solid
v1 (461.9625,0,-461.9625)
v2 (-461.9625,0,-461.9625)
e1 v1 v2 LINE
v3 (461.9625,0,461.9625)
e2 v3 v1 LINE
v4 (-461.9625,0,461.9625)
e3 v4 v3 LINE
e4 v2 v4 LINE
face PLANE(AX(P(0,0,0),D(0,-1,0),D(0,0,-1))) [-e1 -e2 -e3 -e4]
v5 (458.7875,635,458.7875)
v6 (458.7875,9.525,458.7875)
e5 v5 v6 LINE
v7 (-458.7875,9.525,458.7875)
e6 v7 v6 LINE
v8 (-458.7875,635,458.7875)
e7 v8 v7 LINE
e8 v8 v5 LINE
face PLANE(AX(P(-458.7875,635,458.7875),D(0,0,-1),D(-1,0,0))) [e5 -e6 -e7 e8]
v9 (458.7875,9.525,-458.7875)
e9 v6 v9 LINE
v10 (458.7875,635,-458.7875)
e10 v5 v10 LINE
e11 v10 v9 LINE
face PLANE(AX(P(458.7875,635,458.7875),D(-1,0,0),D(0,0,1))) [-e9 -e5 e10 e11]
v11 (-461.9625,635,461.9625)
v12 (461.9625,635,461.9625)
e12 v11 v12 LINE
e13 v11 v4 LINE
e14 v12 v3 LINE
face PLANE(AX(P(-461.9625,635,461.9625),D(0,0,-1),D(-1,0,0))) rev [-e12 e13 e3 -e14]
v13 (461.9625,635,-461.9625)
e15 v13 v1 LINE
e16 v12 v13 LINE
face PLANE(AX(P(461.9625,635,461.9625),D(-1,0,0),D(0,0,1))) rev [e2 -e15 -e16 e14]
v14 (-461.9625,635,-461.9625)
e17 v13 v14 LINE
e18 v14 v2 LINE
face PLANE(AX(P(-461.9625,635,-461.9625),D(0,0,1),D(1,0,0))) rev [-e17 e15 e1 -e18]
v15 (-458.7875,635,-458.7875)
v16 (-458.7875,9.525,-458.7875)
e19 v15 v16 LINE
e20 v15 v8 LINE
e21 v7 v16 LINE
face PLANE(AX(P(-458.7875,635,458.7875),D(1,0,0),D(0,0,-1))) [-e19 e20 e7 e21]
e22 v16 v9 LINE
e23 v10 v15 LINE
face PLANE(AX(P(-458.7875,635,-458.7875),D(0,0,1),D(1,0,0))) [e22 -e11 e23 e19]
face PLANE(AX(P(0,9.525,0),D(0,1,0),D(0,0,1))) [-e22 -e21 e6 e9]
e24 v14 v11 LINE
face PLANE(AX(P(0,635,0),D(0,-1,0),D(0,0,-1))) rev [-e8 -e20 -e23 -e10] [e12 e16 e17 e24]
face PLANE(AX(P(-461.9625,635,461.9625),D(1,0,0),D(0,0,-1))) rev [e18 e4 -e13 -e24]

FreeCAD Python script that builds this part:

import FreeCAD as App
import Part
import Sketcher
from FreeCAD import Vector
Q = App.Units.Quantity


def add_polygon(sketch, points):
    """Adds a closed chain of lines whose ends are joined by coincident constraints."""
    first, n = sketch.GeometryCount, len(points)
    for a, b in zip(points, points[1:] + points[:1]):
        sketch.addGeometry(Part.LineSegment(App.Vector(*a, 0), App.Vector(*b, 0)), False)
    for i in range(n):
        sketch.addConstraint(Sketcher.Constraint("Coincident", first + i, 2, first + (i + 1) % n, 1))

doc = App.newDocument("Part")
body = doc.addObject("PartDesign::Body", "Body")

# Sketch on XZ plane
sketch1 = doc.addObject("Sketcher::SketchObject", "Sketch")
body.addObject(sketch1)
sketch1.AttachmentSupport = (doc.XZ_Plane, [""])
sketch1.MapMode = "FlatFace"
add_polygon(sketch1, [(-462, -462), (-462, 462), (462, 462), (462, -462)])  # lines 0-3
add_polygon(sketch1, [(459, 459), (-459, 459), (-459, -459), (459, -459)])  # lines 4-7
sketch1.addConstraint(Sketcher.Constraint("Vertical", 0))
sketch1.addConstraint(Sketcher.Constraint("Horizontal", 1))
sketch1.addConstraint(Sketcher.Constraint("Vertical", 2))
sketch1.addConstraint(Sketcher.Constraint("Horizontal", 3))
sketch1.addConstraint(Sketcher.Constraint("Horizontal", 4))
sketch1.addConstraint(Sketcher.Constraint("Vertical", 5))
sketch1.addConstraint(Sketcher.Constraint("Horizontal", 6))
sketch1.addConstraint(Sketcher.Constraint("Vertical", 7))
sketch1.addConstraint(Sketcher.Constraint("Symmetric", 0, 2, 2, 2, -1, 1))
sketch1.addConstraint(Sketcher.Constraint("Symmetric", 4, 2, 6, 2, -1, 1))
sketch1.addConstraint(Sketcher.Constraint("Equal", 3, 0))
sketch1.addConstraint(Sketcher.Constraint("Equal", 6, 5))
sketch1.addConstraint(Sketcher.Constraint("DistanceX", 1, 1, 1, 2, Q("36.375 in")))
sketch1.addConstraint(Sketcher.Constraint("DistanceX", 4, 2, 4, 1, Q("36.125 in")))
pad1 = doc.addObject("PartDesign::Pad", "Pad")
body.addObject(pad1)
pad1.Profile = sketch1
pad1.Length = Q("25 in")
pad1.Reversed = True

# Sketch on XZ plane
sketch2 = doc.addObject("Sketcher::SketchObject", "Sketch001")
body.addObject(sketch2)
sketch2.AttachmentSupport = (doc.XZ_Plane, [""])
sketch2.MapMode = "FlatFace"
add_polygon(sketch2, [(-459, -459), (-459, 459), (459, 459), (459, -459)])  # lines 0-3
sketch2.addConstraint(Sketcher.Constraint("Vertical", 0))
sketch2.addConstraint(Sketcher.Constraint("Horizontal", 1))
sketch2.addConstraint(Sketcher.Constraint("Vertical", 2))
sketch2.addConstraint(Sketcher.Constraint("Horizontal", 3))
sketch2.addConstraint(Sketcher.Constraint("Symmetric", 0, 2, 2, 2, -1, 1))
sketch2.addConstraint(Sketcher.Constraint("Equal", 3, 0))
sketch2.addConstraint(Sketcher.Constraint("DistanceX", 1, 1, 1, 2, Q("36.125 in")))
pad2 = doc.addObject("PartDesign::Pad", "Pad001")
body.addObject(pad2)
pad2.Profile = sketch2
pad2.Length = Q("0.375 in")
pad2.Reversed = True

doc.recompute()
